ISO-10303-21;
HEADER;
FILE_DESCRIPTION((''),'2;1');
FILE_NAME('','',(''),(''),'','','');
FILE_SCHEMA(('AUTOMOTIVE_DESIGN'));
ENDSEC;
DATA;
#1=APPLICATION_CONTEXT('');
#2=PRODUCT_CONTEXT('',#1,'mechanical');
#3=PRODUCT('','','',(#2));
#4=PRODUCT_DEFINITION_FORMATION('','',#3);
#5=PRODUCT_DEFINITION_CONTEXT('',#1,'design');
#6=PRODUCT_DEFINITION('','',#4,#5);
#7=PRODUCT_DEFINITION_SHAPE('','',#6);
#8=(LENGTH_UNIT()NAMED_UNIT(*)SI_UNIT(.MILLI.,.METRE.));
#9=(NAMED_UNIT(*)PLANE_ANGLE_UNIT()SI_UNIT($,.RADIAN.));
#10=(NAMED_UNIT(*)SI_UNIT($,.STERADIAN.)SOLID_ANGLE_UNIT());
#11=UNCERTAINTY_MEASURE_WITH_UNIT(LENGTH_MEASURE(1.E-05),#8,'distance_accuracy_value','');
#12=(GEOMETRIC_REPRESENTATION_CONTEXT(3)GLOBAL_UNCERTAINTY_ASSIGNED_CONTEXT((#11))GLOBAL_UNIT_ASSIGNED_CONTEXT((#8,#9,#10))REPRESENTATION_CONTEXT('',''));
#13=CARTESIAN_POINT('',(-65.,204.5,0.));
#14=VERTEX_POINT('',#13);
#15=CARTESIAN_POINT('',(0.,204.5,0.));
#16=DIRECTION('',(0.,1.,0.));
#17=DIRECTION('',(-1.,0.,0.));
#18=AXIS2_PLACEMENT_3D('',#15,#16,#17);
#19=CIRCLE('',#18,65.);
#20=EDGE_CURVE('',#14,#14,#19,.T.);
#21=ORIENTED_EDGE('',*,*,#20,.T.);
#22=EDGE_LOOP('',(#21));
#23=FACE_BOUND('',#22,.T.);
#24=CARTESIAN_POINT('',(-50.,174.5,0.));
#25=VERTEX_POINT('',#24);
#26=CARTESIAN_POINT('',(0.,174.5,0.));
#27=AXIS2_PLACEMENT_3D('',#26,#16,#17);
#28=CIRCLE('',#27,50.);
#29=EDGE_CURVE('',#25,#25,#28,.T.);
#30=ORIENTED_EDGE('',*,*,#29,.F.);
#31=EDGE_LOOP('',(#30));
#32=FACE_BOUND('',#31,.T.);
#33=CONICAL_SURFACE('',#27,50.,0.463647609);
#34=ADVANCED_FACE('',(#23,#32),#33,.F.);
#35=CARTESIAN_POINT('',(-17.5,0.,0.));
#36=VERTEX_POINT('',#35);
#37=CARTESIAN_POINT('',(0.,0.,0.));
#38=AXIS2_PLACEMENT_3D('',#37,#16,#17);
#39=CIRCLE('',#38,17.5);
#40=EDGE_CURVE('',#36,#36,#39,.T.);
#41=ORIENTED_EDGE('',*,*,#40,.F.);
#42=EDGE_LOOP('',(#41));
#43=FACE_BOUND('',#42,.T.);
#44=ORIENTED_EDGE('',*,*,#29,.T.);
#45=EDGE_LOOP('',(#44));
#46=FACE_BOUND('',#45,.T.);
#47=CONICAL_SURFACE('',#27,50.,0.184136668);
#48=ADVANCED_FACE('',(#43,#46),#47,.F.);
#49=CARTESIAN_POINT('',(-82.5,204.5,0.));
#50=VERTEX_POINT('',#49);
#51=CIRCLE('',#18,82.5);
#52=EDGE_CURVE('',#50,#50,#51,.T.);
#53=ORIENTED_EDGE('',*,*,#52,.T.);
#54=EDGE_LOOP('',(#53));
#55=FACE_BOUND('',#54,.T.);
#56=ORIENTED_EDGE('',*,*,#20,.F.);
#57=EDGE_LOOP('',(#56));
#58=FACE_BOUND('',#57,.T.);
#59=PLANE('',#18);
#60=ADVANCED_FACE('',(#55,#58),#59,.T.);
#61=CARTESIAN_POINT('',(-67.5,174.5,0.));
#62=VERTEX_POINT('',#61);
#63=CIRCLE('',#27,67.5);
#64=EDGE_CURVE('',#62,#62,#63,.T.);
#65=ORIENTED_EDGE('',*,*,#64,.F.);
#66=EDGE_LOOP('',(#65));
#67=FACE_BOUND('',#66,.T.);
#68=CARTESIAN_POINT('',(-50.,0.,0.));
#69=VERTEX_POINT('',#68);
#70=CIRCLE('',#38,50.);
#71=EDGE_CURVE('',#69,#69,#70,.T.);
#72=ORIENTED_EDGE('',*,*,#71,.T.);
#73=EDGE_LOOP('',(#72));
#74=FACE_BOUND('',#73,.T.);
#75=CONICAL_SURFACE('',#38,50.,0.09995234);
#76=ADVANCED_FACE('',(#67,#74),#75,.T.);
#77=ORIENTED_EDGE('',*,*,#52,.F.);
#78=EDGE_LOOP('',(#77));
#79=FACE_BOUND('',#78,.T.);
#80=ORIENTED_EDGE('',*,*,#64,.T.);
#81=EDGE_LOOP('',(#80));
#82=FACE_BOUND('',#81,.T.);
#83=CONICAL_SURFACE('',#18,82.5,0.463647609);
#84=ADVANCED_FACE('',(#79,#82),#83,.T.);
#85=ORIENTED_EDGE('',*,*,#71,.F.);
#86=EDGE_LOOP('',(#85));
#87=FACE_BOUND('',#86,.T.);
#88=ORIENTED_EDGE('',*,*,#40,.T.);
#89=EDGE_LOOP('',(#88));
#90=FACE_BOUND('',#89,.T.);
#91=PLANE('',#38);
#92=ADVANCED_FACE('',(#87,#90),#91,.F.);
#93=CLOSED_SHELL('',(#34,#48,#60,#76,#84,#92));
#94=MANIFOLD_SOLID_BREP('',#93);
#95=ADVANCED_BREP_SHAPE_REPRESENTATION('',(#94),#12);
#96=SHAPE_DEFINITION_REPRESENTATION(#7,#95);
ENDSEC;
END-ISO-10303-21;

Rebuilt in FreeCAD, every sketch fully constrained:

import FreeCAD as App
import Part
import Sketcher
Q = App.Units.Quantity


def add_polygon(sketch, points):
    """Adds a closed chain of lines whose ends are joined by coincident constraints."""
    first, n = sketch.GeometryCount, len(points)
    for a, b in zip(points, points[1:] + points[:1]):
        sketch.addGeometry(Part.LineSegment(App.Vector(*a, 0), App.Vector(*b, 0)), False)
    for i in range(n):
        sketch.addConstraint(Sketcher.Constraint("Coincident", first + i, 2, first + (i + 1) % n, 1))

doc = App.newDocument("Part")
body = doc.addObject("PartDesign::Body", "Body")

# Sketch on XY plane
sketch1 = body.newObject("Sketcher::SketchObject", "Sketch")
sketch1.AttachmentSupport = (doc.getObject("XY_Plane"), [""])
sketch1.MapMode = "FlatFace"
add_polygon(sketch1, [(50, 0), (68, 174), (82, 204), (65, 204), (50, 174), (18, 0)])  # lines 0-5
sketch1.addConstraint([
    Sketcher.Constraint("Horizontal", 2),
    Sketcher.Constraint("Horizontal", 5),
    Sketcher.Constraint("PointOnObject", 4, 2, -1),
    Sketcher.Constraint("Parallel", 1, 3),
    Sketcher.Constraint("Horizontal", 0, 2, 3, 2),
    Sketcher.Constraint("Vertical", 3, 2, 5, 2),
    Sketcher.Constraint("DistanceX", 2, 2, 2, 1, Q("17.5 mm")),
    Sketcher.Constraint("DistanceX", 5, 1, 5, 2, Q("32.5 mm")),
    Sketcher.Constraint("DistanceX", -1, 1, 2, 2, Q("65 mm")),
    Sketcher.Constraint("DistanceX", -1, 1, 3, 2, Q("50 mm")),
    Sketcher.Constraint("DistanceY", 0, 2, 1, 2, Q("30 mm")),
    Sketcher.Constraint("DistanceY", -1, 1, 0, 2, Q("174.5 mm")),
])
revolution = body.newObject("PartDesign::Revolution", "Revolution")
revolution.Profile = sketch1
revolution.ReferenceAxis = (sketch1, ["V_Axis"])
revolution.Angle = 360

doc.recompute()
